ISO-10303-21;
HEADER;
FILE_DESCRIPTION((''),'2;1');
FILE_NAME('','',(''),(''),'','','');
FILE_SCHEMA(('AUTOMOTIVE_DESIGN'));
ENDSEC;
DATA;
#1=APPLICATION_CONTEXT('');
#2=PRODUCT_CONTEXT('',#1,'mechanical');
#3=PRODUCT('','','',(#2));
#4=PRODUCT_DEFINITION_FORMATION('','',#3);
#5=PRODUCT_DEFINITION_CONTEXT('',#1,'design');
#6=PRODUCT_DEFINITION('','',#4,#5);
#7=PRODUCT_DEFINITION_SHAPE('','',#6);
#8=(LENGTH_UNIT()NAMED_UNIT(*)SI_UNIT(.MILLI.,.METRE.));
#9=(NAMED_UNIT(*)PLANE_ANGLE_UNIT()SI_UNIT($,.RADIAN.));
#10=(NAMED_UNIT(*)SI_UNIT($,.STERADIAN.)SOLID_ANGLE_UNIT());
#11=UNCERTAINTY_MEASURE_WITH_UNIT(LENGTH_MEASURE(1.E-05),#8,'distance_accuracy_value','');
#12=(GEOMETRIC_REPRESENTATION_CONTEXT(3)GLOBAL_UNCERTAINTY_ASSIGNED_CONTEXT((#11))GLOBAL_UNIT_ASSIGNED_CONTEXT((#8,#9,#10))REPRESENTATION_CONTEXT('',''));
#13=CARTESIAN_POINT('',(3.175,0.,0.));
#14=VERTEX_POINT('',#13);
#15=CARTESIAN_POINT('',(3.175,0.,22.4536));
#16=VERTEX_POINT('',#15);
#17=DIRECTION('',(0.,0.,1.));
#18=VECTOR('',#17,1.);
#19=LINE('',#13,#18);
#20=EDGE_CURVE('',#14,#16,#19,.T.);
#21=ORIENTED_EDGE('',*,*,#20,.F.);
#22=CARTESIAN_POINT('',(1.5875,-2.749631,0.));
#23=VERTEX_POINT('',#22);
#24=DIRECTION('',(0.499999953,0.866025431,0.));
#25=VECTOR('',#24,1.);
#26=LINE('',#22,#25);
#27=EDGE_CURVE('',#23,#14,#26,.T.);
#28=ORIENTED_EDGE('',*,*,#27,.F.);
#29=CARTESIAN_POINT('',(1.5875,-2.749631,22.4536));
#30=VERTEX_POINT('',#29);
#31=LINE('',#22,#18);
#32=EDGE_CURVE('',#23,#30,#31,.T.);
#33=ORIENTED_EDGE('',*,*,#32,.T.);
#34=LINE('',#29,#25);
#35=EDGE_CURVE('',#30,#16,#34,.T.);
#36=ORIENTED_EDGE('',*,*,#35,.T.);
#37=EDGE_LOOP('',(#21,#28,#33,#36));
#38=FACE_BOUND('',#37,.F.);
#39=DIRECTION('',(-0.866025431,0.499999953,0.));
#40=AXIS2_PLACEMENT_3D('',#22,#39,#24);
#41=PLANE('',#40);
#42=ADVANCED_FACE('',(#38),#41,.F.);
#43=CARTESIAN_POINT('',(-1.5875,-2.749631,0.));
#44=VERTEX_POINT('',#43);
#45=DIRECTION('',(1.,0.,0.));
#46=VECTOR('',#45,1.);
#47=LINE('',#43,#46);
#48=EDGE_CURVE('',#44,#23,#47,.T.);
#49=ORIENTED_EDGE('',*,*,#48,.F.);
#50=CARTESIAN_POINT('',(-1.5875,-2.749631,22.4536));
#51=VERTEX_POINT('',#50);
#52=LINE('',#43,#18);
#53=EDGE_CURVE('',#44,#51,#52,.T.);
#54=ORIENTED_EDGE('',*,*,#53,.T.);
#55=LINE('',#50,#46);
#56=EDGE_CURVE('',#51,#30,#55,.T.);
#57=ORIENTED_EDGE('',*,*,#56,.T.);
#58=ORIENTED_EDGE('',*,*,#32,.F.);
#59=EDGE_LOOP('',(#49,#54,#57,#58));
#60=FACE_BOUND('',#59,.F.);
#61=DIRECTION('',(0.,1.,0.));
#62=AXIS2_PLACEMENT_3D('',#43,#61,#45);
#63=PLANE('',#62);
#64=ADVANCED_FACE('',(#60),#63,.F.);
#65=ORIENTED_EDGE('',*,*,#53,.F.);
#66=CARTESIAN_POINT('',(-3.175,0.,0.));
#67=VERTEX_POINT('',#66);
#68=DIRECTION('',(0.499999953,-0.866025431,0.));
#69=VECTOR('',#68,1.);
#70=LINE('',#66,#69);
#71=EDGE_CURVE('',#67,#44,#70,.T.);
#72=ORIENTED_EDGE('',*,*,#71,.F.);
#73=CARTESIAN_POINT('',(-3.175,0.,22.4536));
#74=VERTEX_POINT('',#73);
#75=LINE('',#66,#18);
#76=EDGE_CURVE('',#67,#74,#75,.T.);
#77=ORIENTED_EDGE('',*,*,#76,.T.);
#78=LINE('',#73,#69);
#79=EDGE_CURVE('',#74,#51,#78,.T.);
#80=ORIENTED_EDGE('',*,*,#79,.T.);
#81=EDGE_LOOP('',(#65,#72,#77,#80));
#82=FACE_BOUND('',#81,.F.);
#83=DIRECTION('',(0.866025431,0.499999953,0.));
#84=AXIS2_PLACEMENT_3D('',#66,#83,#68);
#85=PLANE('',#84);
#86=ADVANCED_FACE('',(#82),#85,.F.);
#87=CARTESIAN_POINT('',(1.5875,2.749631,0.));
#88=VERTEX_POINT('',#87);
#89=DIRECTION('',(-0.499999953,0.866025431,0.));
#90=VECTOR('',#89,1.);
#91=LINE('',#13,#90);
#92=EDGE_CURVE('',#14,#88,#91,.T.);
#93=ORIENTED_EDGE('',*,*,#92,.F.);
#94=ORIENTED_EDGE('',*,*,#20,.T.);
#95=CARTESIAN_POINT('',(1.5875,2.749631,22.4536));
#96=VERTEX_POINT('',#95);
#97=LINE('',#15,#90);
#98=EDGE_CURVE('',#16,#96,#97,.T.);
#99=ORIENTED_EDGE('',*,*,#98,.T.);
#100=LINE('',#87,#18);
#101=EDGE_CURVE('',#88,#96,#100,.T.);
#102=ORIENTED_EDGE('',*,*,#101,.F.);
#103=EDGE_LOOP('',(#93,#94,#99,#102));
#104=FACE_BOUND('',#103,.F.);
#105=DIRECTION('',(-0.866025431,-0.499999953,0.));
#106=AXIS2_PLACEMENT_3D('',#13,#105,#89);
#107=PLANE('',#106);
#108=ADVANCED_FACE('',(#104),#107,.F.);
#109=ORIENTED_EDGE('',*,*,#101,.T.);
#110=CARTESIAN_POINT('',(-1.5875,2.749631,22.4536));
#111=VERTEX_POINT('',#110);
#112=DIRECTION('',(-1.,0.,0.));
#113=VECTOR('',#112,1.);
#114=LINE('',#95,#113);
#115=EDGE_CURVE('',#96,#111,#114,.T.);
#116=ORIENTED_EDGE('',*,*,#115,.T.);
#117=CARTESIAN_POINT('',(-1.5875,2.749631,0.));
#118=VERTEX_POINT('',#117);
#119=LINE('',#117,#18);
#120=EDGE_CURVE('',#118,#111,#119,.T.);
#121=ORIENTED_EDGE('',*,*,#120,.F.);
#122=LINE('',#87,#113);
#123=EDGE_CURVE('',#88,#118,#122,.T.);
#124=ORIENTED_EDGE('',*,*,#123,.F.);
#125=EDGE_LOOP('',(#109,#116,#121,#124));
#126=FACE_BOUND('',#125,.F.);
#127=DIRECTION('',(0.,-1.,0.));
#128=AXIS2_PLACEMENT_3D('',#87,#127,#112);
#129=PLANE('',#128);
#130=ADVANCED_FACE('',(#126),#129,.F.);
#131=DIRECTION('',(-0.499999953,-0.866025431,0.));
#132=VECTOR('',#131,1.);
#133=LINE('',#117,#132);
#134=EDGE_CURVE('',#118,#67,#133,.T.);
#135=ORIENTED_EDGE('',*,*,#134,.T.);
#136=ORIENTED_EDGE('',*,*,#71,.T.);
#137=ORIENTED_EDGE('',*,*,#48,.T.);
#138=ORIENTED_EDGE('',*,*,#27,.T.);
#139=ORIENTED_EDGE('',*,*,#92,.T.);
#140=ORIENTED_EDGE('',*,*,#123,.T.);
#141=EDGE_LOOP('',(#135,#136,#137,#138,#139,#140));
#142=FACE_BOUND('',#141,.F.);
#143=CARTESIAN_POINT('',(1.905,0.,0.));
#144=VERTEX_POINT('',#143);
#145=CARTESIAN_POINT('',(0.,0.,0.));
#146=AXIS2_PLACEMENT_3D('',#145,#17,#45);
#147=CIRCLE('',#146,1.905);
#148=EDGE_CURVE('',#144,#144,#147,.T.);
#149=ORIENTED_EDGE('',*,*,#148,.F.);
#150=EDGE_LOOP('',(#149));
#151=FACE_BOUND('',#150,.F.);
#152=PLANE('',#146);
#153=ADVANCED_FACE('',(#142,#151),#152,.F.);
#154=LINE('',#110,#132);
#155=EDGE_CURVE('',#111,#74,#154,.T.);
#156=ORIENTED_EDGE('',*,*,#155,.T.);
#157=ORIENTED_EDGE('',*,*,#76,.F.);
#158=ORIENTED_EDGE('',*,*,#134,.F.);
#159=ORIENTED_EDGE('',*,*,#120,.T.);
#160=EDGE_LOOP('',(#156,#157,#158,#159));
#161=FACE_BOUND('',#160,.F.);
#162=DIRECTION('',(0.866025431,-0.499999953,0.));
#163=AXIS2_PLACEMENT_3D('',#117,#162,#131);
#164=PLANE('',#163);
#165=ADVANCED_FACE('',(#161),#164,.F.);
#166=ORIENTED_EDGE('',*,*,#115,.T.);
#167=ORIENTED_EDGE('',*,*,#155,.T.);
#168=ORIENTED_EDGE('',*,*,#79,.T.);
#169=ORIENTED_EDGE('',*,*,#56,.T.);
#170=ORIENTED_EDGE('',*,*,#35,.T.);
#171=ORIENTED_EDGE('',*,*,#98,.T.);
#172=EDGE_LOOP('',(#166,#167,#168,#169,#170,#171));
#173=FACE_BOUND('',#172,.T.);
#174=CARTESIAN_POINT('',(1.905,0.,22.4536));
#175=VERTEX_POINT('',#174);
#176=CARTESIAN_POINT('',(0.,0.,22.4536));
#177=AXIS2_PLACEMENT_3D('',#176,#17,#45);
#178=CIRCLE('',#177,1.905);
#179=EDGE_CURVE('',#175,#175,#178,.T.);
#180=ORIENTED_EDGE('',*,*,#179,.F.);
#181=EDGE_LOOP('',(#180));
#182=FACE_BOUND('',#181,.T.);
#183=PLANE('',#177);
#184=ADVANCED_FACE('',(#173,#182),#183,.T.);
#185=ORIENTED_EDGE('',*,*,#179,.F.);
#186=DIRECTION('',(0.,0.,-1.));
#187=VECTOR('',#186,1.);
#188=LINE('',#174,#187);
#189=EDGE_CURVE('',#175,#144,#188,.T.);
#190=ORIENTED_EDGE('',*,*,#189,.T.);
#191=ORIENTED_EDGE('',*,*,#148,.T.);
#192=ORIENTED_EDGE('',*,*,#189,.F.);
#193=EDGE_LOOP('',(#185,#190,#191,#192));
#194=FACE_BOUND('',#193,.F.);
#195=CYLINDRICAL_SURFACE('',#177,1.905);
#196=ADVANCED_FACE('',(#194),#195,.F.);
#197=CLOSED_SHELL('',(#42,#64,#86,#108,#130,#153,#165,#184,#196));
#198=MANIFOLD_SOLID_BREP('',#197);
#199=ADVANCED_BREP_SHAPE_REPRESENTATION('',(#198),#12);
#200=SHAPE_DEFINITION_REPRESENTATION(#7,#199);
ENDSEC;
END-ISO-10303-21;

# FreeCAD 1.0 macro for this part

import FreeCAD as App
import Part
import Sketcher
Q = App.Units.Quantity


def add_polygon(sketch, points):
    """Adds a closed chain of lines whose ends are joined by coincident constraints."""
    first, n = sketch.GeometryCount, len(points)
    for a, b in zip(points, points[1:] + points[:1]):
        sketch.addGeometry(Part.LineSegment(App.Vector(*a, 0), App.Vector(*b, 0)), False)
    for i in range(n):
        sketch.addConstraint(Sketcher.Constraint("Coincident", first + i, 2, first + (i + 1) % n, 1))

doc = App.newDocument("Part")
body = doc.addObject("PartDesign::Body", "Body")

# Sketch on XY plane
sketch1 = body.newObject("Sketcher::SketchObject", "Sketch")
sketch1.AttachmentSupport = (doc.getObject("XY_Plane"), [""])
sketch1.MapMode = "FlatFace"
add_polygon(sketch1, [(1.6, -2.7), (3.2, 0), (1.6, 2.7), (-1.6, 2.7), (-3.2, 0), (-1.6, -2.7)])  # lines 0-5
sketch1.addConstraint(Sketcher.Constraint("Horizontal", 2))
sketch1.addConstraint(Sketcher.Constraint("Horizontal", 5))
sketch1.addConstraint(Sketcher.Constraint("Symmetric", 0, 2, 3, 2, -1, 1))
sketch1.addConstraint(Sketcher.Constraint("Symmetric", 1, 2, 4, 2, -1, 1))
sketch1.addConstraint(Sketcher.Constraint("PointOnObject", 0, 2, -1))
sketch1.addConstraint(Sketcher.Constraint("Parallel", 0, 3))
sketch1.addConstraint(Sketcher.Constraint("Vertical", 2, 2, 4, 2))
sketch1.addConstraint(Sketcher.Constraint("Angle", 0, Q("60.000003 deg")))
sketch1.addConstraint(Sketcher.Constraint("DistanceX", 2, 2, 2, 1, Q("0.125 in")))
sketch1.addConstraint(Sketcher.Constraint("DistanceX", 3, 2, 0, 2, Q("0.25 in")))
pad1 = body.newObject("PartDesign::Pad", "Pad")
pad1.Profile = sketch1
pad1.Length = Q("0.884 in")

# Sketch on XY plane
sketch2 = body.newObject("Sketcher::SketchObject", "Sketch001")
sketch2.AttachmentSupport = (doc.getObject("XY_Plane"), [""])
sketch2.MapMode = "FlatFace"
sketch2.AttachmentOffset = App.Placement(App.Vector(0, 0, 0.884 * 25.4), App.Rotation())
sketch2.addGeometry(Part.Circle(App.Vector(0, 0, 0), App.Vector(0, 0, 1), 1.9), False)
sketch2.addConstraint(Sketcher.Constraint("Coincident", 0, 3, -1, 1))
sketch2.addConstraint(Sketcher.Constraint("Diameter", 0, Q("0.15 in")))
pocket1 = body.newObject("PartDesign::Pocket", "Pocket")
pocket1.Profile = sketch2
pocket1.Type = "ThroughAll"

doc.recompute()
